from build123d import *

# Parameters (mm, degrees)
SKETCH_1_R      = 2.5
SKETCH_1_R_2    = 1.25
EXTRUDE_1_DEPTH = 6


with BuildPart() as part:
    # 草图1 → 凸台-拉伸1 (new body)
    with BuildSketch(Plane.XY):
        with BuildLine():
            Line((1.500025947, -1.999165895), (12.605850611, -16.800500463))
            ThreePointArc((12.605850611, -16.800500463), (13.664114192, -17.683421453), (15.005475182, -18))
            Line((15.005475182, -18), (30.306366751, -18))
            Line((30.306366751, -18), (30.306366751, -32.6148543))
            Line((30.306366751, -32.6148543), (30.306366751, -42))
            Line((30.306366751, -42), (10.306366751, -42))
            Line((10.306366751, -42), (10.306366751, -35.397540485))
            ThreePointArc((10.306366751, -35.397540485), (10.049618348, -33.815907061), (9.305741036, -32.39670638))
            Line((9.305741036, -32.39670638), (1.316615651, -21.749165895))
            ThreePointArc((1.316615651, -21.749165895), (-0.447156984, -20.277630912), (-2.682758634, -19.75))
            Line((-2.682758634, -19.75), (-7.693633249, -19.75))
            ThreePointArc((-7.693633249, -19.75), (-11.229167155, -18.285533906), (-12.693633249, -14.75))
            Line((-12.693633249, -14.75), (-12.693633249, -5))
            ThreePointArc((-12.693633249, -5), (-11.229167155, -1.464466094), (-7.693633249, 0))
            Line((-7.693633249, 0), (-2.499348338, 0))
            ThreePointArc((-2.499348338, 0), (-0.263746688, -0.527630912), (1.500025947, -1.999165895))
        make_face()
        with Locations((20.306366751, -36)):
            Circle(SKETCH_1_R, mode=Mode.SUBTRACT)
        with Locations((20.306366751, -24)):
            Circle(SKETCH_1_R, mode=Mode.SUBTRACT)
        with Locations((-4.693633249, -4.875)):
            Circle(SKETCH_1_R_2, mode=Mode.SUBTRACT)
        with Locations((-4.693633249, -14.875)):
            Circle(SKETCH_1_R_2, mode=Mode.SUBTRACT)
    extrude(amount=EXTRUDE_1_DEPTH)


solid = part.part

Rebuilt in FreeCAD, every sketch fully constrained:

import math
import FreeCAD as App
import Part
import Sketcher
from FreeCAD import Vector

doc = App.newDocument("Part")
params = doc.addObject("Spreadsheet::Sheet", "Params")
for row, (alias, value) in enumerate([
    ("sketch1_diameter", "5 mm"),
    ("sketch1_radius", "5 mm"),
    ("sketch1_radius2", "3 mm"),
    ("sketch1_diameter2", "2.5 mm"),
    ("sketch1_width", "20 mm"),
    ("pad1_length", "6 mm"),
], start=1):
    params.set(f"A{row}", alias)
    params.set(f"B{row}", "=" + value)
    params.setAlias(f"B{row}", alias)

body = doc.addObject("PartDesign::Body", "Body")

sketch1 = doc.addObject("Sketcher::SketchObject", "Sketch")
body.addObject(sketch1)
sketch1.AttachmentSupport = (doc.XY_Plane, [""])
sketch1.MapMode = "FlatFace"
sketch1.addGeometry(Part.LineSegment(Vector(12.6, -16.8, 0), Vector(1.5, -2, 0)), False)
sketch1.addGeometry(Part.ArcOfCircle(Part.Circle(Vector(-2.5, -5, 0), Vector(0, 0, 1), 5), math.radians(37), math.radians(90)), False)
sketch1.addGeometry(Part.LineSegment(Vector(-2.5, 0, 0), Vector(-7.7, 0, 0)), False)
sketch1.addGeometry(Part.ArcOfCircle(Part.Circle(Vector(-7.7, -5, 0), Vector(0, 0, 1), 5), math.radians(90), math.radians(180)), False)
sketch1.addGeometry(Part.LineSegment(Vector(-12.7, -5, 0), Vector(-12.7, -14.8, 0)), False)
sketch1.addGeometry(Part.ArcOfCircle(Part.Circle(Vector(-7.7, -14.8, 0), Vector(0, 0, 1), 5), math.radians(180), math.radians(270)), False)
sketch1.addGeometry(Part.LineSegment(Vector(-7.7, -19.8, 0), Vector(-2.7, -19.8, 0)), False)
sketch1.addGeometry(Part.ArcOfCircle(Part.Circle(Vector(-2.7, -24.8, 0), Vector(0, 0, 1), 5), math.radians(37), math.radians(90)), False)
sketch1.addGeometry(Part.LineSegment(Vector(1.3, -21.7, 0), Vector(9.3, -32.4, 0)), False)
sketch1.addGeometry(Part.ArcOfCircle(Part.Circle(Vector(5.3, -35.4, 0), Vector(0, 0, 1), 5), math.radians(0), math.radians(37)), False)
sketch1.addGeometry(Part.LineSegment(Vector(10.3, -35.4, 0), Vector(10.3, -42, 0)), False)
sketch1.addGeometry(Part.LineSegment(Vector(10.3, -42, 0), Vector(30.3, -42, 0)), False)
sketch1.addGeometry(Part.LineSegment(Vector(30.3, -42, 0), Vector(30.3, -18, 0)), False)
sketch1.addGeometry(Part.LineSegment(Vector(30.3, -18, 0), Vector(15, -18, 0)), False)
sketch1.addGeometry(Part.ArcOfCircle(Part.Circle(Vector(15, -15, 0), Vector(0, 0, 1), 3), math.radians(-143), math.radians(-90)), False)
sketch1.addGeometry(Part.Circle(Vector(20.3, -36, 0), Vector(0, 0, 1), 2.5), False)
sketch1.addGeometry(Part.Circle(Vector(20.3, -24, 0), Vector(0, 0, 1), 2.5), False)
sketch1.addGeometry(Part.Circle(Vector(-4.7, -14.9, 0), Vector(0, 0, 1), 1.2), False)
sketch1.addGeometry(Part.Circle(Vector(-4.7, -4.9, 0), Vector(0, 0, 1), 1.2), False)
sketch1.addConstraint(Sketcher.Constraint("Tangent", 0, 2, 1, 1))
sketch1.addConstraint(Sketcher.Constraint("Tangent", 1, 2, 2, 1))
sketch1.addConstraint(Sketcher.Constraint("Tangent", 2, 2, 3, 1))
sketch1.addConstraint(Sketcher.Constraint("Tangent", 3, 2, 4, 1))
sketch1.addConstraint(Sketcher.Constraint("Tangent", 4, 2, 5, 1))
sketch1.addConstraint(Sketcher.Constraint("Tangent", 5, 2, 6, 1))
sketch1.addConstraint(Sketcher.Constraint("Tangent", 6, 2, 7, 2))
sketch1.addConstraint(Sketcher.Constraint("Tangent", 7, 1, 8, 1))
sketch1.addConstraint(Sketcher.Constraint("Tangent", 8, 2, 9, 2))
sketch1.addConstraint(Sketcher.Constraint("Tangent", 9, 1, 10, 1))
sketch1.addConstraint(Sketcher.Constraint("Coincident", 10, 2, 11, 1))
sketch1.addConstraint(Sketcher.Constraint("Coincident", 11, 2, 12, 1))
sketch1.addConstraint(Sketcher.Constraint("Coincident", 12, 2, 13, 1))
sketch1.addConstraint(Sketcher.Constraint("Tangent", 13, 2, 14, 2))
sketch1.addConstraint(Sketcher.Constraint("Tangent", 14, 1, 0, 1))
sketch1.addConstraint(Sketcher.Constraint("Horizontal", 2))
sketch1.addConstraint(Sketcher.Constraint("Vertical", 4))
sketch1.addConstraint(Sketcher.Constraint("Horizontal", 6))
sketch1.addConstraint(Sketcher.Constraint("Vertical", 10))
sketch1.addConstraint(Sketcher.Constraint("Horizontal", 11))
sketch1.addConstraint(Sketcher.Constraint("Vertical", 12))
sketch1.addConstraint(Sketcher.Constraint("Horizontal", 13))
sketch1.addConstraint(Sketcher.Constraint("Equal", 1, 3))
sketch1.addConstraint(Sketcher.Constraint("Equal", 3, 5))
sketch1.addConstraint(Sketcher.Constraint("Equal", 5, 7))
sketch1.addConstraint(Sketcher.Constraint("Equal", 7, 9))
sketch1.addConstraint(Sketcher.Constraint("Equal", 15, 16))
sketch1.addConstraint(Sketcher.Constraint("Equal", 17, 18))
sketch1.addConstraint(Sketcher.Constraint("PointOnObject", 1, 2, -1))
sketch1.addConstraint(Sketcher.Constraint("Parallel", 0, 8))
sketch1.addConstraint(Sketcher.Constraint("Vertical", 15, 3, 16, 3))
sketch1.addConstraint(Sketcher.Constraint("Vertical", 17, 3, 18, 3))
sketch1.addConstraint(Sketcher.Constraint("Diameter", 15, 5.0))
sketch1.addConstraint(Sketcher.Constraint("Radius", 1, 5.0))
sketch1.addConstraint(Sketcher.Constraint("Radius", 14, 3.0))
sketch1.addConstraint(Sketcher.Constraint("Diameter", 17, 2.5))
sketch1.addConstraint(Sketcher.Constraint("DistanceX", 11, 1, 11, 2, 20.0))
sketch1.addConstraint(Sketcher.Constraint("DistanceY", 12, 1, 12, 2, 24.0))
sketch1.addConstraint(Sketcher.Constraint("DistanceY", 14, 3, -1, 1, 15.0))
sketch1.addConstraint(Sketcher.Constraint("DistanceY", 15, 3, -1, 1, 36.0))
sketch1.addConstraint(Sketcher.Constraint("DistanceY", 16, 3, -1, 1, 24.0))
sketch1.addConstraint(Sketcher.Constraint("DistanceX", 5, 3, 9, 3, 13.0))
sketch1.addConstraint(Sketcher.Constraint("DistanceX", 9, 3, 15, 3, 15.0))
sketch1.addConstraint(Sketcher.Constraint("DistanceX", 5, 3, 17, 3, 3.0))
sketch1.addConstraint(Sketcher.Constraint("DistanceY", 17, 3, 18, 3, 10.0))
sketch1.addConstraint(Sketcher.Constraint("DistanceY", 4, 2, 4, 1, 9.75))
sketch1.addConstraint(Sketcher.Constraint("DistanceY", 17, 3, -1, 1, 14.875))
sketch1.addConstraint(Sketcher.Constraint("DistanceX", 13, 2, 13, 1, 15.300892))
sketch1.addConstraint(Sketcher.Constraint("DistanceY", 10, 2, 10, 1, 6.60246))
sketch1.addConstraint(Sketcher.Constraint("DistanceY", 14, 1, -1, 1, 16.8005))
sketch1.addConstraint(Sketcher.Constraint("DistanceX", 1, 3, -1, 1, 2.499348))
sketch1.setExpression("Constraints[32]", "Params.sketch1_diameter")
sketch1.setExpression("Constraints[33]", "Params.sketch1_radius")
sketch1.setExpression("Constraints[34]", "Params.sketch1_radius2")
sketch1.setExpression("Constraints[35]", "Params.sketch1_diameter2")
sketch1.setExpression("Constraints[36]", "Params.sketch1_width")
pad1 = doc.addObject("PartDesign::Pad", "Pad")
body.addObject(pad1)
pad1.Profile = sketch1
pad1.setExpression("Length", "Params.pad1_length")

doc.recompute()
